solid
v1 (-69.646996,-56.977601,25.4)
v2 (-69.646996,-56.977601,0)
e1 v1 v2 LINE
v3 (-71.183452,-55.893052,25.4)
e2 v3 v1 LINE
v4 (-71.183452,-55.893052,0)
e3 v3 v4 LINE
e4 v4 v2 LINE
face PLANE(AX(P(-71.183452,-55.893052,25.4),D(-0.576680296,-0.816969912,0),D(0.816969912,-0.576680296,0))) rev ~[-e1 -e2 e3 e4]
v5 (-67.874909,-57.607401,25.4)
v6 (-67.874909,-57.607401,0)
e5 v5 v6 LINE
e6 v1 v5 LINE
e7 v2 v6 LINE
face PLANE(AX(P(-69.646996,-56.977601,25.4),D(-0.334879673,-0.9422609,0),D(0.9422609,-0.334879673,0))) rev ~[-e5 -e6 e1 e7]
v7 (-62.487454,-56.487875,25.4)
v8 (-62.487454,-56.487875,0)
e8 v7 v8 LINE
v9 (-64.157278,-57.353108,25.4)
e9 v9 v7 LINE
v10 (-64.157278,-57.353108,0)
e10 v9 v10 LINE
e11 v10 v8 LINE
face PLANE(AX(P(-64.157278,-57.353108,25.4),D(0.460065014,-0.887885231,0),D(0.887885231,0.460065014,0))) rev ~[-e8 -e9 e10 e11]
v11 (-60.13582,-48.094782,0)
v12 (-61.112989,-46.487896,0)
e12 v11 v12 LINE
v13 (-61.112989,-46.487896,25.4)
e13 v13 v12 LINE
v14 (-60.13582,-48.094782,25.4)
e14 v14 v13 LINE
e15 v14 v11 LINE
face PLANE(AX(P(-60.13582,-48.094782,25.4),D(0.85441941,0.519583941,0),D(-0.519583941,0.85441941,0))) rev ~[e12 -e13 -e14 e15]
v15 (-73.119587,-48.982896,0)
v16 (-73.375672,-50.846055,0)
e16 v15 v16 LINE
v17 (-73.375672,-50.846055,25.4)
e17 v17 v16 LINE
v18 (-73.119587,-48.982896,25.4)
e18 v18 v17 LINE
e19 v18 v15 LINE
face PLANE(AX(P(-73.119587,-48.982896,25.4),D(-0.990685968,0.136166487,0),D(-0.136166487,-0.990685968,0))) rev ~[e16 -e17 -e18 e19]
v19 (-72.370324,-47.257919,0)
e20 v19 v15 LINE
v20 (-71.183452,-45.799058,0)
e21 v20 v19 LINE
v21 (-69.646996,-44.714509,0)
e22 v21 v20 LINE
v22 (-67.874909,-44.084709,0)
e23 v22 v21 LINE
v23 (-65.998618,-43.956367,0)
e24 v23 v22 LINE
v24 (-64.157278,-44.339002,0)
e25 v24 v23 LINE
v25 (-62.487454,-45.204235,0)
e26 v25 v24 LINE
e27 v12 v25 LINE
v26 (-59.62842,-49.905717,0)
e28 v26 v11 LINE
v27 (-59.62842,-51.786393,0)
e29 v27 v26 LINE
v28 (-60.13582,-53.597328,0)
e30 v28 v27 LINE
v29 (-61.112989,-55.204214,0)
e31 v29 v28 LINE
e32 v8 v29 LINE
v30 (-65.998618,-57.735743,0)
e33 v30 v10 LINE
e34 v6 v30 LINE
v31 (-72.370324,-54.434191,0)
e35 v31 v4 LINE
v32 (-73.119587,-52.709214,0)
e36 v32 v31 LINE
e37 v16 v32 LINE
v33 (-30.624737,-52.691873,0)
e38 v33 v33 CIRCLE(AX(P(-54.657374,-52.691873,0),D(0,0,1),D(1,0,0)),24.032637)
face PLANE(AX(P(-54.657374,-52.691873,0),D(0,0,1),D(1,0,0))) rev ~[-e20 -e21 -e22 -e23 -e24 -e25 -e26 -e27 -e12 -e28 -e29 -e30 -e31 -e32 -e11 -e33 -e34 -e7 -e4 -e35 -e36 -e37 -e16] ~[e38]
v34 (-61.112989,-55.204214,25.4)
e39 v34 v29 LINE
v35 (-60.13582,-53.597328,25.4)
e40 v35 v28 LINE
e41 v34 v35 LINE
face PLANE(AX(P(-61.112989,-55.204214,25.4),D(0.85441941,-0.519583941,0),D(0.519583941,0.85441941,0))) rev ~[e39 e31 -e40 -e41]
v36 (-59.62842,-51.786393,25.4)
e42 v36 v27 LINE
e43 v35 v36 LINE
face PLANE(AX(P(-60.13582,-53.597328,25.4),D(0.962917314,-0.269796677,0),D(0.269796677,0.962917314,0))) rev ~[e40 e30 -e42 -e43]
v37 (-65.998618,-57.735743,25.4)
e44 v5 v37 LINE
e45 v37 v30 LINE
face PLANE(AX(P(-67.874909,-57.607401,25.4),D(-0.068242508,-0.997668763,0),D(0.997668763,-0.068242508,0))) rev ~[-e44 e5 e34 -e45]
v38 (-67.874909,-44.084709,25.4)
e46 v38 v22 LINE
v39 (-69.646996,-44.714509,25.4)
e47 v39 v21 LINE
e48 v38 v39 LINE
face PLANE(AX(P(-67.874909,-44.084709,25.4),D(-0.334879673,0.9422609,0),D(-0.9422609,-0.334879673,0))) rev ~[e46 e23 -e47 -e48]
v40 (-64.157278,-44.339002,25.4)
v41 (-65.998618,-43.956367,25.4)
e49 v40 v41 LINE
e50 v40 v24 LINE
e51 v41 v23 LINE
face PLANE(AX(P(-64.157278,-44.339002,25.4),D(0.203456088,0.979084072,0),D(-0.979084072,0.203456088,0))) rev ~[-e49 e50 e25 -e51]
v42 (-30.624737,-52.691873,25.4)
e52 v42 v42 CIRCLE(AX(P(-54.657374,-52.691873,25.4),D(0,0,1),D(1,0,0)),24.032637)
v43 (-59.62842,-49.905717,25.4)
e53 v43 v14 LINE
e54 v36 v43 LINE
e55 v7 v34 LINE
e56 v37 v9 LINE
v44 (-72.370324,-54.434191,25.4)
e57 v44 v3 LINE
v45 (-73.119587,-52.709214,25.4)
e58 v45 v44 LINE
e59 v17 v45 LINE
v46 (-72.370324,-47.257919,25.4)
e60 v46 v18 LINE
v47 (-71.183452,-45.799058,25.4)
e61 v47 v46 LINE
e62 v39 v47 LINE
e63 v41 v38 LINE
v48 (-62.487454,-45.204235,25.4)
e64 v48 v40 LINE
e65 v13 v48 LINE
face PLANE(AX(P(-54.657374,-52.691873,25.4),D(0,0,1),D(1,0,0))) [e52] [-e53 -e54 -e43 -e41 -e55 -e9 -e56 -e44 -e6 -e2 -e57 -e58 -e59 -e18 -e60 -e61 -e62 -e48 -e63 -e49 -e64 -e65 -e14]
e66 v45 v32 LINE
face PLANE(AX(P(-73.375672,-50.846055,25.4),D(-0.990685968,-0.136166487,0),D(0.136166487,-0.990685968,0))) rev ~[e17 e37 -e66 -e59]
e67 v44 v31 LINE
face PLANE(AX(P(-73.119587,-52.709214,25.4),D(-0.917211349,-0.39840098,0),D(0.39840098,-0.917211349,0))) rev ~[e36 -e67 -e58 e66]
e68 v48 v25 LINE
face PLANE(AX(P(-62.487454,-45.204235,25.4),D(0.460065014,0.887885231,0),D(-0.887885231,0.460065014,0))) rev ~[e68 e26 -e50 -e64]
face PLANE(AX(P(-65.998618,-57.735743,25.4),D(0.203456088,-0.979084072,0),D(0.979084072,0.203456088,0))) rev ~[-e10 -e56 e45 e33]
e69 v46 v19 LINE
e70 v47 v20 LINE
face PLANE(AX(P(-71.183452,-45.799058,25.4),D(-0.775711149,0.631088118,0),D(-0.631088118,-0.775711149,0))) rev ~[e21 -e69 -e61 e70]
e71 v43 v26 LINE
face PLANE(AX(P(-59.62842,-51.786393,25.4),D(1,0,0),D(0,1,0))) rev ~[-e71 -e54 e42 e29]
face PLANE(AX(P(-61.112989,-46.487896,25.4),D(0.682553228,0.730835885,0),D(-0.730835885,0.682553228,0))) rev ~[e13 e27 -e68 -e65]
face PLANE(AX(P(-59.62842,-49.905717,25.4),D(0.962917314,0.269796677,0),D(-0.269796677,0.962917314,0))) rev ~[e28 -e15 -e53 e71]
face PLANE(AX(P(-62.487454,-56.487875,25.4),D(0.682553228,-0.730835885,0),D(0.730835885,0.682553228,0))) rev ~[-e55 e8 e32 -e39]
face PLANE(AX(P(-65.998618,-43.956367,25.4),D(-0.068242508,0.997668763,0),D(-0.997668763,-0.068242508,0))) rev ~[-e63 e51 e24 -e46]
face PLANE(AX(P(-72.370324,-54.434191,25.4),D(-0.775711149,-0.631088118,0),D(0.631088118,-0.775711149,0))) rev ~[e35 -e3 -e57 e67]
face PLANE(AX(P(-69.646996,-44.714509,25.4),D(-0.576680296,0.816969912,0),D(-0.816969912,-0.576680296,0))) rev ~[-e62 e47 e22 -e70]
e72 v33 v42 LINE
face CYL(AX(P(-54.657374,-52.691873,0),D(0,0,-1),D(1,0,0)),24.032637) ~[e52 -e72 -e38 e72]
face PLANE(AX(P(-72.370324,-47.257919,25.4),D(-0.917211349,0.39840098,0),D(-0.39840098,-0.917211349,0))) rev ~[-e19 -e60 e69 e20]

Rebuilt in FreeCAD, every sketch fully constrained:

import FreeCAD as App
import Part
import Sketcher
from FreeCAD import Vector
Q = App.Units.Quantity


def add_polygon(sketch, points):
    """Adds a closed chain of lines whose ends are joined by coincident constraints."""
    first, n = sketch.GeometryCount, len(points)
    for a, b in zip(points, points[1:] + points[:1]):
        sketch.addGeometry(Part.LineSegment(App.Vector(*a, 0), App.Vector(*b, 0)), False)
    for i in range(n):
        sketch.addConstraint(Sketcher.Constraint("Coincident", first + i, 2, first + (i + 1) % n, 1))

doc = App.newDocument("Part")
body = doc.addObject("PartDesign::Body", "Body")

# Sketch on XY plane
sketch1 = body.newObject("Sketcher::SketchObject", "Sketch")
sketch1.AttachmentSupport = (doc.getObject("XY_Plane"), [""])
sketch1.MapMode = "FlatFace"
sketch1.addGeometry(Part.Circle(Vector(-55, -53, 0), Vector(0, 0, 1), 24), False)
sketch1.addConstraint(Sketcher.Constraint("Diameter", 0, 48.065274))
sketch1.addConstraint(Sketcher.Constraint("DistanceX", 0, 3, -1, 1, 54.657374))
sketch1.addConstraint(Sketcher.Constraint("DistanceY", 0, 3, -1, 1, 52.691873))
pad1 = body.newObject("PartDesign::Pad", "Pad")
pad1.Profile = sketch1
pad1.Length = Q("1 in")

# Sketch on XY plane
sketch2 = body.newObject("Sketcher::SketchObject", "Sketch001")
sketch2.AttachmentSupport = (doc.getObject("XY_Plane"), [""])
sketch2.MapMode = "FlatFace"
sketch2.AttachmentOffset = App.Placement(Vector(0, 0, 1 * 25.4), App.Rotation())
add_polygon(sketch2, [(-59.6, -51.8), (-59.6, -49.9), (-60.1, -48.1), (-61.1, -46.5), (-62.5, -45.2), (-64.2, -44.3), (-66, -44), (-67.9, -44.1), (-69.6, -44.7), (-71.2, -45.8), (-72.4, -47.3), (-73.1, -49), (-73.4, -50.8), (-73.1, -52.7), (-72.4, -54.4), (-71.2, -55.9), (-69.6, -57), (-67.9, -57.6), (-66, -57.7), (-64.2, -57.4), (-62.5, -56.5), (-61.1, -55.2), (-60.1, -53.6)])  # lines 0-22
sketch2.addConstraint(Sketcher.Constraint("Vertical", 0))
sketch2.addConstraint(Sketcher.Constraint("Vertical", 10, 2, 12, 2))
sketch2.addConstraint(Sketcher.Constraint("Vertical", 9, 2, 13, 2))
sketch2.addConstraint(Sketcher.Constraint("Vertical", 8, 2, 14, 2))
sketch2.addConstraint(Sketcher.Constraint("Vertical", 7, 2, 15, 2))
sketch2.addConstraint(Sketcher.Constraint("Vertical", 6, 2, 16, 2))
sketch2.addConstraint(Sketcher.Constraint("Vertical", 5, 2, 17, 2))
sketch2.addConstraint(Sketcher.Constraint("Vertical", 4, 2, 18, 2))
sketch2.addConstraint(Sketcher.Constraint("Vertical", 3, 2, 19, 2))
sketch2.addConstraint(Sketcher.Constraint("Vertical", 2, 2, 20, 2))
sketch2.addConstraint(Sketcher.Constraint("Vertical", 1, 2, 21, 2))
sketch2.addConstraint(Sketcher.Constraint("Equal", 1, 2))
sketch2.addConstraint(Sketcher.Constraint("Equal", 2, 3))
sketch2.addConstraint(Sketcher.Constraint("Equal", 3, 4))
sketch2.addConstraint(Sketcher.Constraint("Equal", 4, 5))
sketch2.addConstraint(Sketcher.Constraint("Equal", 5, 6))
sketch2.addConstraint(Sketcher.Constraint("Equal", 6, 7))
sketch2.addConstraint(Sketcher.Constraint("Equal", 7, 8))
sketch2.addConstraint(Sketcher.Constraint("Equal", 8, 9))
sketch2.addConstraint(Sketcher.Constraint("Equal", 9, 10))
sketch2.addConstraint(Sketcher.Constraint("Equal", 10, 11))
sketch2.addConstraint(Sketcher.Constraint("Equal", 11, 12))
sketch2.addConstraint(Sketcher.Constraint("Equal", 12, 13))
sketch2.addConstraint(Sketcher.Constraint("Equal", 13, 14))
sketch2.addConstraint(Sketcher.Constraint("Equal", 14, 15))
sketch2.addConstraint(Sketcher.Constraint("Equal", 15, 16))
sketch2.addConstraint(Sketcher.Constraint("Equal", 16, 17))
sketch2.addConstraint(Sketcher.Constraint("Equal", 17, 18))
sketch2.addConstraint(Sketcher.Constraint("Equal", 18, 19))
sketch2.addConstraint(Sketcher.Constraint("Equal", 19, 20))
sketch2.addConstraint(Sketcher.Constraint("Equal", 20, 21))
sketch2.addConstraint(Sketcher.Constraint("Equal", 21, 22))
sketch2.addConstraint(Sketcher.Constraint("DistanceY", 15, 2, -1, 1, 56.977601))
sketch2.addConstraint(Sketcher.Constraint("DistanceY", 16, 2, -1, 1, 57.607401))
sketch2.addConstraint(Sketcher.Constraint("DistanceX", 1, 2, 0, 2, 0.5074))
sketch2.addConstraint(Sketcher.Constraint("DistanceX", 8, 2, 3, 2, 8.695998))
sketch2.addConstraint(Sketcher.Constraint("DistanceY", 0, 1, 0, 2, 1.880676))
sketch2.addConstraint(Sketcher.Constraint("DistanceX", 0, 2, -1, 1, 59.62842))
sketch2.addConstraint(Sketcher.Constraint("DistanceX", 2, 2, -1, 1, 61.112989))
sketch2.addConstraint(Sketcher.Constraint("DistanceX", 4, 2, -1, 1, 64.157278))
sketch2.addConstraint(Sketcher.Constraint("DistanceX", 6, 2, -1, 1, 67.874909))
sketch2.addConstraint(Sketcher.Constraint("DistanceY", 6, 2, -1, 1, 44.084709))
sketch2.addConstraint(Sketcher.Constraint("DistanceY", 8, 2, -1, 1, 45.799058))
sketch2.addConstraint(Sketcher.Constraint("DistanceY", 9, 2, -1, 1, 47.257919))
sketch2.addConstraint(Sketcher.Constraint("DistanceX", 11, 2, -1, 1, 73.375672))
sketch2.addConstraint(Sketcher.Constraint("DistanceY", 0, 2, 2, 2, 3.417821))
pocket1 = body.newObject("PartDesign::Pocket", "Pocket")
pocket1.Profile = sketch2
pocket1.Length = Q("1 in")

doc.recompute()
